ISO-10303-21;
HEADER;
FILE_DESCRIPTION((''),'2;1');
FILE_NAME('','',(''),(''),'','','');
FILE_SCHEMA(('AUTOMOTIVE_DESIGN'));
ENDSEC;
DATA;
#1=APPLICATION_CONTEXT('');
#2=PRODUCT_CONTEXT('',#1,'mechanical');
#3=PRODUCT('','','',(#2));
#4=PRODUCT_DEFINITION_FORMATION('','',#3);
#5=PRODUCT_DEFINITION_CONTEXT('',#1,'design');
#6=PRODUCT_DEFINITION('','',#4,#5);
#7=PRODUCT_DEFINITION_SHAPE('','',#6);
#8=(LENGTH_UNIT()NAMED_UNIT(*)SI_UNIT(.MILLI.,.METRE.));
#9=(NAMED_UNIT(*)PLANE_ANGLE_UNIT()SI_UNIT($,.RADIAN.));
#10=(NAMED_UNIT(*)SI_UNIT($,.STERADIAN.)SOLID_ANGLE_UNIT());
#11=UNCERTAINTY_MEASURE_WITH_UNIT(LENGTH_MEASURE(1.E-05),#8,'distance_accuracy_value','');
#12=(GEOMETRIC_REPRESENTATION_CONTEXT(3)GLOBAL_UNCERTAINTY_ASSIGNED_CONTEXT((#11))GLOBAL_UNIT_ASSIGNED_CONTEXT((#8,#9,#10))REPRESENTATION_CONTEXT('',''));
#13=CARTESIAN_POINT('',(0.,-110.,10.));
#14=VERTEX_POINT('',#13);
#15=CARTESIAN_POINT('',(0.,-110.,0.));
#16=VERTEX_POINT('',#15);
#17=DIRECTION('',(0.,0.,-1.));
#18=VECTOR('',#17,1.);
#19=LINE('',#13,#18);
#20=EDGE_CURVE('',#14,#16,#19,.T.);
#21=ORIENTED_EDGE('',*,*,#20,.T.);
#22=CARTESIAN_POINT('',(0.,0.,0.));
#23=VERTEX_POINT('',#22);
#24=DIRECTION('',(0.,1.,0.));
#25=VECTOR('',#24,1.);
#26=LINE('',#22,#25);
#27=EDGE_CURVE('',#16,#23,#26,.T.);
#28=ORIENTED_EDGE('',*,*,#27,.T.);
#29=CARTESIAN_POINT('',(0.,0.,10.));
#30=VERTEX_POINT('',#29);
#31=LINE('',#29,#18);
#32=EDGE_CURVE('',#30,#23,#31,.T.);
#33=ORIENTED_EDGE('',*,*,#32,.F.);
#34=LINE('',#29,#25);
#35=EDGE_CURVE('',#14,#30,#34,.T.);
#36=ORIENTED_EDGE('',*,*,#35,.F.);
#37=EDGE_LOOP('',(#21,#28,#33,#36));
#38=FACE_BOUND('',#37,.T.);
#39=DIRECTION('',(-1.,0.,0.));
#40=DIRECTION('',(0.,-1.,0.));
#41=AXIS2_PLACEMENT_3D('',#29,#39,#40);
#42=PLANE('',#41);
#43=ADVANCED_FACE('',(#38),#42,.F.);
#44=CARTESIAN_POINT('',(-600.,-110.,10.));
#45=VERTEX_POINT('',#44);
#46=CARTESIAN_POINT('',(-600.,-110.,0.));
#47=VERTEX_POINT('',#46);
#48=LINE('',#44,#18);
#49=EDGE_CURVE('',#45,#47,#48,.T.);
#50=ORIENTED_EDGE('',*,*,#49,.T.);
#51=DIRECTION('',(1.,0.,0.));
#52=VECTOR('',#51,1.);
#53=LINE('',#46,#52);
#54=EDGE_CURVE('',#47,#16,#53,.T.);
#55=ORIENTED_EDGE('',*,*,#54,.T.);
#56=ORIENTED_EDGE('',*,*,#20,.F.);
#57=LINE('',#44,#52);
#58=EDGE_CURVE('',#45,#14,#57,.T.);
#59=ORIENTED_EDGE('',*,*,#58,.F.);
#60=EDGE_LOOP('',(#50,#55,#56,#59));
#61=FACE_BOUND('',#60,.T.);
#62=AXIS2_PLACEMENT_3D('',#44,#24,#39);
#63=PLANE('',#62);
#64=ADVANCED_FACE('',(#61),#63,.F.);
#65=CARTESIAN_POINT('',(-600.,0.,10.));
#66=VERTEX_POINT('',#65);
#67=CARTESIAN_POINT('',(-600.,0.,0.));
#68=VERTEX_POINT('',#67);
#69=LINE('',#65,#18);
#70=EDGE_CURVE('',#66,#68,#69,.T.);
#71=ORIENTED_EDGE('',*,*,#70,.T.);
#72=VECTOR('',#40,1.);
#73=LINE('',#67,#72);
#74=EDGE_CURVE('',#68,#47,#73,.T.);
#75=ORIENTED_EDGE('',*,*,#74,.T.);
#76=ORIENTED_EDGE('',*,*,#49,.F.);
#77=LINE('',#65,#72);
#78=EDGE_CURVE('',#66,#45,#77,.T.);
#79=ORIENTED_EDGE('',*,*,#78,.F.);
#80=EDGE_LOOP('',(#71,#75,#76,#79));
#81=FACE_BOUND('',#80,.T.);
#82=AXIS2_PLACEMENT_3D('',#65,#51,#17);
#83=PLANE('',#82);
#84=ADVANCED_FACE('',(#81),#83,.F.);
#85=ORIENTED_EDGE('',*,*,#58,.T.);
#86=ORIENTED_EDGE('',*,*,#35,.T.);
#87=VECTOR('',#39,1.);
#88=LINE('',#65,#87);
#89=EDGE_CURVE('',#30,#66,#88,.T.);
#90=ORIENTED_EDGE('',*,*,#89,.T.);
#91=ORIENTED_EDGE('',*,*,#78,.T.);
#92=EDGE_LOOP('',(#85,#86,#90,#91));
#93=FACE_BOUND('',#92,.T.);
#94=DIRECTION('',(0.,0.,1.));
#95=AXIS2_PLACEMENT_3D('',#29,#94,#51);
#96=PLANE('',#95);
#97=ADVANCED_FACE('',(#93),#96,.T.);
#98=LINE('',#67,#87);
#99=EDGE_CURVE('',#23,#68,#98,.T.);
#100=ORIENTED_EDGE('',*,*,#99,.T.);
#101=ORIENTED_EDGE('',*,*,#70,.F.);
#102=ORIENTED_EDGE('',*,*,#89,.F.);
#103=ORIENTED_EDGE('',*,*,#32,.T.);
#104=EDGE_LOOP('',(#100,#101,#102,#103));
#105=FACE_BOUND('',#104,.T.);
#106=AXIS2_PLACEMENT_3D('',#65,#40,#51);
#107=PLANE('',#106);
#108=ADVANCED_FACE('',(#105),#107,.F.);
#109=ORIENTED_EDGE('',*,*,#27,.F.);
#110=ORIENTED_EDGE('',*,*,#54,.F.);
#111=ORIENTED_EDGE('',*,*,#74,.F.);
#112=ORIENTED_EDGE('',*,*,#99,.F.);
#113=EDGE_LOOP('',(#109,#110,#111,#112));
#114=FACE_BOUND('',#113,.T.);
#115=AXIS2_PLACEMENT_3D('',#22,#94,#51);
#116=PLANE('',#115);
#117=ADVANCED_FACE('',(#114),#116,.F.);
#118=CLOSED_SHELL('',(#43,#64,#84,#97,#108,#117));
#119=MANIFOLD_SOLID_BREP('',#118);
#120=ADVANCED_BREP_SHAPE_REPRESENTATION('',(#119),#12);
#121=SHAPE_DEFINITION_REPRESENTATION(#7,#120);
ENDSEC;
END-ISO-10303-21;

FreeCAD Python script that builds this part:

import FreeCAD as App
import Part
import Sketcher


def add_polygon(sketch, points):
    """Adds a closed chain of lines whose ends are joined by coincident constraints."""
    first, n = sketch.GeometryCount, len(points)
    for a, b in zip(points, points[1:] + points[:1]):
        sketch.addGeometry(Part.LineSegment(App.Vector(*a, 0), App.Vector(*b, 0)), False)
    for i in range(n):
        sketch.addConstraint(Sketcher.Constraint("Coincident", first + i, 2, first + (i + 1) % n, 1))

doc = App.newDocument("Part")
body = doc.addObject("PartDesign::Body", "Body")

sketch1 = body.newObject("Sketcher::SketchObject", "Sketch")
sketch1.AttachmentSupport = (doc.getObject("XY_Plane"), [""])
sketch1.MapMode = "FlatFace"
add_polygon(sketch1, [(-600, 0), (-600, -110), (0, -110), (0, 0)])
sketch1.addConstraint([
    Sketcher.Constraint("Vertical", 0),
    Sketcher.Constraint("Horizontal", 1),
    Sketcher.Constraint("Vertical", 2),
    Sketcher.Constraint("Horizontal", 3),
    Sketcher.Constraint("Coincident", 2, 2, -1, 1),
    Sketcher.Constraint("DistanceX", 1, 1, 1, 2, 600.0),
    Sketcher.Constraint("DistanceY", 0, 2, 0, 1, 110.0),
])
pad1 = body.newObject("PartDesign::Pad", "Pad")
pad1.Profile = sketch1
pad1.Length = 10

doc.recompute()
